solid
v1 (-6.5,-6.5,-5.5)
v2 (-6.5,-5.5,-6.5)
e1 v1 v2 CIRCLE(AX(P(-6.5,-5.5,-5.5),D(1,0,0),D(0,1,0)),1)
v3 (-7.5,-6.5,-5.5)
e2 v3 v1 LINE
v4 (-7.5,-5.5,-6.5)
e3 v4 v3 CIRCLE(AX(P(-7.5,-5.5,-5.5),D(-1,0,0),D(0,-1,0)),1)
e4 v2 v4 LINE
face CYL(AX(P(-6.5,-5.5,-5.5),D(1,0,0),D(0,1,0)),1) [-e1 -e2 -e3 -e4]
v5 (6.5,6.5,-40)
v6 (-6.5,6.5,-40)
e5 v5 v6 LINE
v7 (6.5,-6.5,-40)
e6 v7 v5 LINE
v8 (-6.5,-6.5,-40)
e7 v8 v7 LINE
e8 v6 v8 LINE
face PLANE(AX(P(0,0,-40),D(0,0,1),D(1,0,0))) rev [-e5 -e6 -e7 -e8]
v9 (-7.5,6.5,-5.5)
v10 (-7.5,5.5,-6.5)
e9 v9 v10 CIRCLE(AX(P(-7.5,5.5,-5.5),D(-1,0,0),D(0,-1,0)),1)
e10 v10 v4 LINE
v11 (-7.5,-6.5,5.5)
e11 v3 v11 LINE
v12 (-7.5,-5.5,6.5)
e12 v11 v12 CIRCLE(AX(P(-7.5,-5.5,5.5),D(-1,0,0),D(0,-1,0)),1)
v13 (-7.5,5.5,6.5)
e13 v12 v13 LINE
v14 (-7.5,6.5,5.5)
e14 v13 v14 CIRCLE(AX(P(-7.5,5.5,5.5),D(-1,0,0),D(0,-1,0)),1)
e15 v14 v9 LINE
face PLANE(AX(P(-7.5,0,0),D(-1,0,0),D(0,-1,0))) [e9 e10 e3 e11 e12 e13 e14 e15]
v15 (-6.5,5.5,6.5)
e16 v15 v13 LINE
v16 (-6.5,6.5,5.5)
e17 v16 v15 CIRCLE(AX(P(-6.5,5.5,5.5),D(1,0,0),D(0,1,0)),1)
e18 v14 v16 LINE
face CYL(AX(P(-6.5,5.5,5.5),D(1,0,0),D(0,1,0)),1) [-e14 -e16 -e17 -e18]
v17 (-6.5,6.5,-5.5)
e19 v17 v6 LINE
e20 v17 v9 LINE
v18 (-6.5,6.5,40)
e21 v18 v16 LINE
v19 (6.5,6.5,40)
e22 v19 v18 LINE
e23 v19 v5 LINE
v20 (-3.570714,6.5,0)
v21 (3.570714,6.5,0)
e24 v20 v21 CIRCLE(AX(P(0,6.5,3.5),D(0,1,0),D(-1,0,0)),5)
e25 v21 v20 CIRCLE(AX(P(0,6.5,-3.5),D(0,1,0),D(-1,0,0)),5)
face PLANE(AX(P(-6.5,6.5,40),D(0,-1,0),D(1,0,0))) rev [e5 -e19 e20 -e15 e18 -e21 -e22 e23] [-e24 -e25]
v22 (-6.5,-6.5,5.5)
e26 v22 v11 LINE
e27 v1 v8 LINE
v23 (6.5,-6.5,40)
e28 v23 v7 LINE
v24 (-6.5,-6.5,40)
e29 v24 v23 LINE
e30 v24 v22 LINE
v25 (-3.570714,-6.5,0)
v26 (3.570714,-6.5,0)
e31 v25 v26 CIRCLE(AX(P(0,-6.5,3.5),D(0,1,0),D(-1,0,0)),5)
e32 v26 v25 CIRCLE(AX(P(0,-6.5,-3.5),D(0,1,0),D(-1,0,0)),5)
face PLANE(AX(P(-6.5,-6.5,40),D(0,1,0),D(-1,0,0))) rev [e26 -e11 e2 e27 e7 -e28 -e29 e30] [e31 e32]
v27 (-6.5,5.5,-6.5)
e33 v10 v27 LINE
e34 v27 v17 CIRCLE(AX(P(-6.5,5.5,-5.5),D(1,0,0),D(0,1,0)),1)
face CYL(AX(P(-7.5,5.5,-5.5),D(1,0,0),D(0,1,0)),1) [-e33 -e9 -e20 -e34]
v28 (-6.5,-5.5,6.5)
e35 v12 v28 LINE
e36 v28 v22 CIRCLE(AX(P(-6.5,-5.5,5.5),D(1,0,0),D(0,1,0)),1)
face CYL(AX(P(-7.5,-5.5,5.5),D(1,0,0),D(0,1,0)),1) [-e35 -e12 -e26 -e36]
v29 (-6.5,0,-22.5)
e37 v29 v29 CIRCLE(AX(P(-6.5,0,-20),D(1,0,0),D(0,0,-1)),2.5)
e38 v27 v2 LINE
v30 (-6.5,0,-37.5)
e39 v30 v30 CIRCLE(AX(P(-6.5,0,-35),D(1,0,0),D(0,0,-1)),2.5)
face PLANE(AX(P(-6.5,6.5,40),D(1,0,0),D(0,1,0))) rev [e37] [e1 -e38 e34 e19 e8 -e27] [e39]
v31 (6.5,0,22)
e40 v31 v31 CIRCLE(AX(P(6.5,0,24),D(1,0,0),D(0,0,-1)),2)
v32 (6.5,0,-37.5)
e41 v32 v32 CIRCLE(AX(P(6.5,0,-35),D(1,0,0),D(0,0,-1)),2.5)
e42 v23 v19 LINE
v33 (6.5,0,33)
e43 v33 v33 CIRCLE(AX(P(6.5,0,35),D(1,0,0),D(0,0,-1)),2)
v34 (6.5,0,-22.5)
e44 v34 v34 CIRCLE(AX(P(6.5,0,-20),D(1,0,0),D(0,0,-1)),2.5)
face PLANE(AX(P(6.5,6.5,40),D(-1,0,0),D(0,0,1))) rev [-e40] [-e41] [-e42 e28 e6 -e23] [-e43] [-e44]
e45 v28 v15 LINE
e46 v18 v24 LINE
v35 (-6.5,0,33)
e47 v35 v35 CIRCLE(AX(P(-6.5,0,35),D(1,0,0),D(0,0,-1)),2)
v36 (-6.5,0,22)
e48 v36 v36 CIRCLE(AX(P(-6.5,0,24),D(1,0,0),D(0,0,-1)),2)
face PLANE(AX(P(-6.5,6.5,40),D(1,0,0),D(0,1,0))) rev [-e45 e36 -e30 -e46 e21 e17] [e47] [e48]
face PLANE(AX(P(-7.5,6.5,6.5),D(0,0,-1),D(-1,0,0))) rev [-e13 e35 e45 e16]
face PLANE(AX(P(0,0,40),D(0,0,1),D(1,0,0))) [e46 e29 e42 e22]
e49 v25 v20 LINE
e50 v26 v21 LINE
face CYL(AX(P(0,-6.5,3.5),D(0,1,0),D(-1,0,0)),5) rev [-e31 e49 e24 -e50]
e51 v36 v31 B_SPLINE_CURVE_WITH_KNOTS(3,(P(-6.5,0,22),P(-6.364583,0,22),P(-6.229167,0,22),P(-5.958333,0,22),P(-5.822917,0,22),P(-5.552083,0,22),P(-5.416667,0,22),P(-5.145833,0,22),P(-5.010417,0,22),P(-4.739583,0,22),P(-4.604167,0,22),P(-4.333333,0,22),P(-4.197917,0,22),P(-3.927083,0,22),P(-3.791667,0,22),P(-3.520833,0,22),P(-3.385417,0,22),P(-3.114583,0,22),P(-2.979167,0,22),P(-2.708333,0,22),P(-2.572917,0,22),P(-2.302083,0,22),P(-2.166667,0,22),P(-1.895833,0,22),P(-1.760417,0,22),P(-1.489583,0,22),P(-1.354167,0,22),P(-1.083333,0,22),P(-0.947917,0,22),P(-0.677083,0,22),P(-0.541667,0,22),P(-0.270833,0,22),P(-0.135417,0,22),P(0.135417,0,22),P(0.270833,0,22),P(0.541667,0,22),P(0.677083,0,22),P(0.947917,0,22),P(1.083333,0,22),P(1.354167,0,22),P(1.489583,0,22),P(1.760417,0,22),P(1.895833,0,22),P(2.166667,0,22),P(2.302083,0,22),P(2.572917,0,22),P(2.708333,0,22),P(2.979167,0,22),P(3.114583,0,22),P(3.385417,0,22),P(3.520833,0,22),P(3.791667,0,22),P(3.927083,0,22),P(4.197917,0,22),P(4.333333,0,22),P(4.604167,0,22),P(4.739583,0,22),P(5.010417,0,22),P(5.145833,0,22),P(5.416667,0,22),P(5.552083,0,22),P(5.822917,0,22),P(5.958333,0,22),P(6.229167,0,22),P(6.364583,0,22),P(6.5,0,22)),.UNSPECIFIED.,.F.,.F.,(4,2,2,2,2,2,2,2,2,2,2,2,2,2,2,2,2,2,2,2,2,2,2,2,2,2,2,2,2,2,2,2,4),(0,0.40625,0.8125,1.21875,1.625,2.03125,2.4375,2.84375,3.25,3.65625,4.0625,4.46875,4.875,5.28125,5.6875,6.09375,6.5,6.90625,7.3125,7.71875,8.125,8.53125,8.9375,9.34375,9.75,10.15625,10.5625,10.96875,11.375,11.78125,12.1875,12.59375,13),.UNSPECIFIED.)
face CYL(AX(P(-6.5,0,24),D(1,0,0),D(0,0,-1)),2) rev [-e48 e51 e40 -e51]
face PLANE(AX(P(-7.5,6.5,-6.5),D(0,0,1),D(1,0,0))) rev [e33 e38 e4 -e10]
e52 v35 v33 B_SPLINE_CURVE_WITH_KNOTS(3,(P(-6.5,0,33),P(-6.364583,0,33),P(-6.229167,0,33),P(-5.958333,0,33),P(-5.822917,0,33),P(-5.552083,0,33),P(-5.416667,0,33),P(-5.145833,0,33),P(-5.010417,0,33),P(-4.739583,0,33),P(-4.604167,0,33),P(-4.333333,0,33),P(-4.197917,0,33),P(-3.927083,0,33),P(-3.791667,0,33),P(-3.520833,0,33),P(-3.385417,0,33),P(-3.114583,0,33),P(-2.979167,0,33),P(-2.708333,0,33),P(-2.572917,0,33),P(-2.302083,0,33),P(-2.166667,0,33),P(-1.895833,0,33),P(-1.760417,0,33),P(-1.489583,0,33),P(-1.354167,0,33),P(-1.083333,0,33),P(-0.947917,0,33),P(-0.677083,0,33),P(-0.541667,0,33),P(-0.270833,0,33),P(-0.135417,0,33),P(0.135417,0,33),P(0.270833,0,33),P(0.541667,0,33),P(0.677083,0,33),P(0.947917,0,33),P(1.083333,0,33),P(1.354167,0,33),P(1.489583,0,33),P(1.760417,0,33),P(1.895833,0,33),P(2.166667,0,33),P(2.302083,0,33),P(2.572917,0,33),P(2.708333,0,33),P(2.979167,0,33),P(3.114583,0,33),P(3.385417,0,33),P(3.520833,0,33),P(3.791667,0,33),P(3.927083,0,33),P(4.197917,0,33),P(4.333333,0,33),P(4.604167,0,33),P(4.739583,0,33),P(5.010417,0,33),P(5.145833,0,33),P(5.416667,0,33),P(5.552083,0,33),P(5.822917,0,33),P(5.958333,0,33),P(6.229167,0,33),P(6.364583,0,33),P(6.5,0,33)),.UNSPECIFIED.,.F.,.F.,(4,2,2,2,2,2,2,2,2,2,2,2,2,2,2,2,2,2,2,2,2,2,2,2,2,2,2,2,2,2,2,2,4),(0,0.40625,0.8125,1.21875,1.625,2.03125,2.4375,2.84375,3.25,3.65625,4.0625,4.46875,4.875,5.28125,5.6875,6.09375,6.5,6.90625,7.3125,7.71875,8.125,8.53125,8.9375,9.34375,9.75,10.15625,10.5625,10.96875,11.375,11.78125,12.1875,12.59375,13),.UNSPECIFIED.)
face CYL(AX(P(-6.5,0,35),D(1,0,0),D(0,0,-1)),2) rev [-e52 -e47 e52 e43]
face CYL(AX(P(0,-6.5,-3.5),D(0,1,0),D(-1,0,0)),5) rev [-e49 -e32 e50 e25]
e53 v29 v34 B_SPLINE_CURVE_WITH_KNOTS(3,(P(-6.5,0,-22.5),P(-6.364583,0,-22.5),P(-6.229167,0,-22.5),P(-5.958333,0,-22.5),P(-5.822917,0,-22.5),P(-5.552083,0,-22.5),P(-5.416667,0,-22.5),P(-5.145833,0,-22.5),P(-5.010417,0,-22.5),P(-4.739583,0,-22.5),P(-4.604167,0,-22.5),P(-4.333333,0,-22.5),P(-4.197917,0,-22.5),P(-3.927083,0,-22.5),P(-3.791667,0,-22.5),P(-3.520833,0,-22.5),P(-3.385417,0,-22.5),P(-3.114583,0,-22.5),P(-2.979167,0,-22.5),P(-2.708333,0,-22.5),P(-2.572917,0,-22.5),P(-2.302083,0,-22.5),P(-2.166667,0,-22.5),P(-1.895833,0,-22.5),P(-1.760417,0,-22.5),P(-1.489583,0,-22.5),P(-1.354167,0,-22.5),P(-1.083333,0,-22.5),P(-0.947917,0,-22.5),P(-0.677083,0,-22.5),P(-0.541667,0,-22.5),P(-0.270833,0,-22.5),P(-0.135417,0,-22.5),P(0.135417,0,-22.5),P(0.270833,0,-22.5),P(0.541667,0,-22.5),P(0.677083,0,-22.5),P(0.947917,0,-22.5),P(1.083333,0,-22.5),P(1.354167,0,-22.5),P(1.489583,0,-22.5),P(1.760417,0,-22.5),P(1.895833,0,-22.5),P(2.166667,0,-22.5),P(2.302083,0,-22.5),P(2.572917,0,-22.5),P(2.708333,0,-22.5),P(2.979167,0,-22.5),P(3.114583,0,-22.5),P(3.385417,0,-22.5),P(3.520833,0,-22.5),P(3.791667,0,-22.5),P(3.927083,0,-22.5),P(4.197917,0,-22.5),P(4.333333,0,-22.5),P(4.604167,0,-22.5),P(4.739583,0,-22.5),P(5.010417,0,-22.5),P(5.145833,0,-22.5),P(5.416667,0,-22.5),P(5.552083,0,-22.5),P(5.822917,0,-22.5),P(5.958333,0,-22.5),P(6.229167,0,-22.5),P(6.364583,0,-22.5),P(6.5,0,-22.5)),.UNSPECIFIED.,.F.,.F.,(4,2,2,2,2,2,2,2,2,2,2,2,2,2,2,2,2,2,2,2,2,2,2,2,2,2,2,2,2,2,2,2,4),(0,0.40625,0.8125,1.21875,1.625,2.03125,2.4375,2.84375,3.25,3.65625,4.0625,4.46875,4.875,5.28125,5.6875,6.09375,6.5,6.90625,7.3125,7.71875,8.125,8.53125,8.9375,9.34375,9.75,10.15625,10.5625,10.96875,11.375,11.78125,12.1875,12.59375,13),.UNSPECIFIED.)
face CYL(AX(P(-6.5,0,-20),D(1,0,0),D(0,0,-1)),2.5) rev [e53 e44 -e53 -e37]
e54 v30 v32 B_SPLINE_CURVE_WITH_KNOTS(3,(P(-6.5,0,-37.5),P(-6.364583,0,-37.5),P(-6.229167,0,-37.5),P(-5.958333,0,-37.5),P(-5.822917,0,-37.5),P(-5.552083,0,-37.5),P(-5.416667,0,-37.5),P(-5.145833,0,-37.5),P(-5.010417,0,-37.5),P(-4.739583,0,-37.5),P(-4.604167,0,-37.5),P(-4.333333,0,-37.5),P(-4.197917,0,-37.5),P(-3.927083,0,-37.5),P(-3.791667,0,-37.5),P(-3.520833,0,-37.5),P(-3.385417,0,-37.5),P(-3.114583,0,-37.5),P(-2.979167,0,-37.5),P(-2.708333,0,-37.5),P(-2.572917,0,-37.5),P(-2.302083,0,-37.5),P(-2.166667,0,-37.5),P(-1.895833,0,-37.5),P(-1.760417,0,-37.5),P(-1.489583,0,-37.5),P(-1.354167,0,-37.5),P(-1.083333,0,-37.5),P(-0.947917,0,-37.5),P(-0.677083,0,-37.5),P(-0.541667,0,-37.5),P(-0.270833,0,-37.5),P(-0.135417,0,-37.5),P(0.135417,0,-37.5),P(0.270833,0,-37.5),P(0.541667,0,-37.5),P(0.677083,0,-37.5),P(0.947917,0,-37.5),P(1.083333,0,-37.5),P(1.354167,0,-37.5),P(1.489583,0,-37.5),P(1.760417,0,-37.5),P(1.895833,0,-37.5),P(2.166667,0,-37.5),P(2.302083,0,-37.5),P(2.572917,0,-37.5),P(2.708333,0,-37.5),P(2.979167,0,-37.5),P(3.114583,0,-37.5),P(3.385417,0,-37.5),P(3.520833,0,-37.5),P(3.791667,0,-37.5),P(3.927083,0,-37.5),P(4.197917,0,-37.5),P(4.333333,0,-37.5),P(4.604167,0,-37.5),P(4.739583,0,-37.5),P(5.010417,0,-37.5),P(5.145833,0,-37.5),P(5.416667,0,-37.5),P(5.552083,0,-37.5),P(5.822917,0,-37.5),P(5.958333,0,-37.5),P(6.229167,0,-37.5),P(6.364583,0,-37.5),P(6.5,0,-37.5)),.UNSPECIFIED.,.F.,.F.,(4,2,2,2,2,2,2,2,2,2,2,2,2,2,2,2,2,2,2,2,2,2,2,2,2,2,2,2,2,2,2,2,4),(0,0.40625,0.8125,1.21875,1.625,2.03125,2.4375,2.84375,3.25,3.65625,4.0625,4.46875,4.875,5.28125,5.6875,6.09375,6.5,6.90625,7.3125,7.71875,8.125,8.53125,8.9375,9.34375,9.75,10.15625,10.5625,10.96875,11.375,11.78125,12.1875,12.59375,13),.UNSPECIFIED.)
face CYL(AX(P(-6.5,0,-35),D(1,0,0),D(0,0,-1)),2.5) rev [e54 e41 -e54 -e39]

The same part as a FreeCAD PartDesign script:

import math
import FreeCAD as App
import Part
import Sketcher

V = App.Vector
Q = App.Units.Quantity


def edges_at(feature, points):
    """Names of the edges that pass closest to the given points."""
    edges = feature.Shape.Edges
    near = lambda p: min(range(len(edges)), key=lambda i: edges[i].distToShape(Part.Vertex(*p))[0])
    return sorted({f"Edge{near(p) + 1}" for p in points})


def add_polygon(sketch, points):
    """Adds a closed chain of lines whose ends are joined by coincident constraints."""
    first, n = sketch.GeometryCount, len(points)
    for a, b in zip(points, points[1:] + points[:1]):
        sketch.addGeometry(Part.LineSegment(App.Vector(*a, 0), App.Vector(*b, 0)), False)
    for i in range(n):
        sketch.addConstraint(Sketcher.Constraint("Coincident", first + i, 2, first + (i + 1) % n, 1))

doc = App.newDocument("Part")
body = doc.addObject("PartDesign::Body", "Body")

sketch1 = body.newObject("Sketcher::SketchObject", "Sketch")
sketch1.AttachmentSupport = (doc.getObject("XY_Plane"), [""])
sketch1.MapMode = "FlatFace"
add_polygon(sketch1, [(-6, 6), (-6, -6), (6, -6), (6, 6)])
sketch1.addConstraint([
    Sketcher.Constraint("Vertical", 0),
    Sketcher.Constraint("Horizontal", 1),
    Sketcher.Constraint("Vertical", 2),
    Sketcher.Constraint("Horizontal", 3),
    Sketcher.Constraint("Symmetric", 0, 2, 2, 2, -1, 1),
    Sketcher.Constraint("Equal", 3, 0),
    Sketcher.Constraint("DistanceX", 1, 1, 1, 2, Q("13 mm")),
])
pad1 = body.newObject("PartDesign::Pad", "Pad")
pad1.Profile = sketch1
pad1.Length = 80
pad1.Midplane = True

sketch2 = body.newObject("Sketcher::SketchObject", "Sketch001")
sketch2.AttachmentSupport = (doc.getObject("XZ_Plane"), [""])
sketch2.MapMode = "FlatFace"
sketch2.AttachmentOffset = App.Placement(V(0, 0, -6.5), App.Rotation())
sketch2.addGeometry([
    Part.ArcOfCircle(Part.Circle(V(0, -4, 0), V(0, 0, 1), 5), math.radians(136), math.radians(404)),
    Part.ArcOfCircle(Part.Circle(V(0, 4, 0), V(0, 0, 1), 5), math.radians(-44), math.radians(224)),
], False)
sketch2.addConstraint([
    Sketcher.Constraint("Coincident", 0, 1, 1, 2),
    Sketcher.Constraint("Coincident", 1, 1, 0, 2),
    Sketcher.Constraint("Equal", 0, 1),
    Sketcher.Constraint("Symmetric", 0, 3, 1, 3, -1, 1),
    Sketcher.Constraint("PointOnObject", 0, 3, -2),
    Sketcher.Constraint("Radius", 0, Q("5 mm")),
    Sketcher.Constraint("DistanceY", 0, 3, 1, 3, Q("7 mm")),
])
pocket1 = body.newObject("PartDesign::Pocket", "Pocket")
pocket1.Profile = sketch2
pocket1.Type = "ThroughAll"
pocket1.Reversed = True

sketch3 = body.newObject("Sketcher::SketchObject", "Sketch002")
sketch3.AttachmentSupport = (doc.getObject("YZ_Plane"), [""])
sketch3.MapMode = "FlatFace"
sketch3.AttachmentOffset = App.Placement(V(0, 0, 6.5), App.Rotation())
sketch3.addGeometry([
    Part.Circle(V(0, 35, 0), V(0, 0, 1), 2),
    Part.Circle(V(0, 24, 0), V(0, 0, 1), 2),
    Part.Circle(V(0, -20, 0), V(0, 0, 1), 2.5),
    Part.Circle(V(0, -35, 0), V(0, 0, 1), 2.5),
], False)
sketch3.addConstraint([
    Sketcher.Constraint("Equal", 0, 1),
    Sketcher.Constraint("Equal", 2, 3),
    Sketcher.Constraint("Symmetric", 0, 3, 3, 3, -1, 1),
    Sketcher.Constraint("PointOnObject", 0, 3, -2),
    Sketcher.Constraint("PointOnObject", 1, 3, -2),
    Sketcher.Constraint("PointOnObject", 2, 3, -2),
    Sketcher.Constraint("Diameter", 0, Q("4 mm")),
    Sketcher.Constraint("Diameter", 2, Q("5 mm")),
    Sketcher.Constraint("DistanceY", -1, 1, 0, 3, Q("35 mm")),
    Sketcher.Constraint("DistanceY", -1, 1, 1, 3, Q("24 mm")),
    Sketcher.Constraint("DistanceY", 2, 3, -1, 1, Q("20 mm")),
])
pocket2 = body.newObject("PartDesign::Pocket", "Pocket001")
pocket2.Profile = sketch3
pocket2.Type = "ThroughAll"

sketch4 = body.newObject("Sketcher::SketchObject", "Sketch003")
sketch4.AttachmentSupport = (doc.getObject("YZ_Plane"), [""])
sketch4.MapMode = "FlatFace"
sketch4.AttachmentOffset = App.Placement(V(0, 0, -6.5), App.Rotation())
add_polygon(sketch4, [(6, -6), (-6, -6), (-6, 6), (6, 6)])
sketch4.addConstraint([
    Sketcher.Constraint("Horizontal", 0),
    Sketcher.Constraint("Vertical", 1),
    Sketcher.Constraint("Horizontal", 2),
    Sketcher.Constraint("Vertical", 3),
    Sketcher.Constraint("Symmetric", 0, 2, 2, 2, -1, 1),
    Sketcher.Constraint("Equal", 2, 1),
    Sketcher.Constraint("DistanceX", 0, 2, 0, 1, Q("13 mm")),
])
pad2 = body.newObject("PartDesign::Pad", "Pad001")
pad2.Profile = sketch4
pad2.Length = 1
pad2.Reversed = True
doc.recompute()

fillet = body.newObject("PartDesign::Fillet", "Fillet")
fillet.Base = (pad2, edges_at(pad2, [
    (-7, -6.5, 6.5),
    (-7, 6.5, 6.5),
    (-7, 6.5, -6.5),
    (-7, -6.5, -6.5),
]))
fillet.Radius = 1

doc.recompute()
